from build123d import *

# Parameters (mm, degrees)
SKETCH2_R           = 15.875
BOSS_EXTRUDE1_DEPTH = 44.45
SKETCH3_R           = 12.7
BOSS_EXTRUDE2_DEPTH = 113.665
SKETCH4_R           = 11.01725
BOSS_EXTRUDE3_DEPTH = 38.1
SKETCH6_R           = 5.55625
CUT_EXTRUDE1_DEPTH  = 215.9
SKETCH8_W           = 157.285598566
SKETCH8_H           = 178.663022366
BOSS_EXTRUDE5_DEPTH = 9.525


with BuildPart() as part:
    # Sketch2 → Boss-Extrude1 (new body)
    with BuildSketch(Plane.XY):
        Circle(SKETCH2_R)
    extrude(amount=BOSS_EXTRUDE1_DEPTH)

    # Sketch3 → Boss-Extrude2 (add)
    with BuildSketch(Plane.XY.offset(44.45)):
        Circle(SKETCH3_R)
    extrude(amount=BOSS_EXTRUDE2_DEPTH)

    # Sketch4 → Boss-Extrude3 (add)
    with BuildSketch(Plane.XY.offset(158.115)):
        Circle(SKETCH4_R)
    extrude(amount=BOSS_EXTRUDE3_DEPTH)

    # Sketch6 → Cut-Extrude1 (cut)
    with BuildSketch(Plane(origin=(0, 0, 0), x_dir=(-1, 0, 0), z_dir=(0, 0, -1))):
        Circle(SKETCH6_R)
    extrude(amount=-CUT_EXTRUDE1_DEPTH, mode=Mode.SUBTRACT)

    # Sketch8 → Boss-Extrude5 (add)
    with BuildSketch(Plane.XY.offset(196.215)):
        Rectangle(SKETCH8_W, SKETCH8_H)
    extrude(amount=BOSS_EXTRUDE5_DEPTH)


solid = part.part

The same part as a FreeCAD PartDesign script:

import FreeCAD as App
import Part
import Sketcher
from FreeCAD import Vector
Q = App.Units.Quantity

doc = App.newDocument("Part")
params = doc.addObject("Spreadsheet::Sheet", "Params")
for row, (alias, value) in enumerate([
    ("sketch1_diameter", "1.25 in"),
    ("pad1_length", "1.75 in"),
    ("sketch2_diameter", "1 in"),
    ("pad2_length", "4.475 in"),
    ("pad3_length", "1.5 in"),
    ("sketch4_diameter", "0.4375 in"),
    ("pocket1_length", "8.5 in"),
    ("pad4_length", "0.375 in"),
], start=1):
    params.set(f"A{row}", alias)
    params.set(f"B{row}", "=" + value)
    params.setAlias(f"B{row}", alias)

body = doc.addObject("PartDesign::Body", "Body")

sketch1 = body.newObject("Sketcher::SketchObject", "Sketch")
sketch1.AttachmentSupport = (doc.getObject("XY_Plane"), [""])
sketch1.MapMode = "FlatFace"
sketch1.addGeometry(Part.Circle(Vector(0, 0, 0), Vector(0, 0, 1), 16), False)
sketch1.addConstraint([
    Sketcher.Constraint("Coincident", 0, 3, -1, 1),
    Sketcher.Constraint("Diameter", 0, Q("1.25 in")),
])
sketch1.setExpression("Constraints[1]", "Params.sketch1_diameter")
pad1 = body.newObject("PartDesign::Pad", "Pad")
pad1.Profile = sketch1
pad1.setExpression("Length", "Params.pad1_length")

sketch2 = body.newObject("Sketcher::SketchObject", "Sketch001")
sketch2.AttachmentSupport = (doc.getObject("XY_Plane"), [""])
sketch2.MapMode = "FlatFace"
sketch2.AttachmentOffset = App.Placement(Vector(0, 0, 1.75 * 25.4), App.Rotation())
sketch2.addGeometry(Part.Circle(Vector(0, 0, 0), Vector(0, 0, 1), 13), False)
sketch2.addConstraint([
    Sketcher.Constraint("Coincident", 0, 3, -1, 1),
    Sketcher.Constraint("Diameter", 0, Q("1 in")),
])
sketch2.setExpression("Constraints[1]", "Params.sketch2_diameter")
pad2 = body.newObject("PartDesign::Pad", "Pad001")
pad2.Profile = sketch2
pad2.setExpression("Length", "Params.pad2_length")

sketch3 = body.newObject("Sketcher::SketchObject", "Sketch002")
sketch3.AttachmentSupport = (doc.getObject("XY_Plane"), [""])
sketch3.MapMode = "FlatFace"
sketch3.AttachmentOffset = App.Placement(Vector(0, 0, 6.225 * 25.4), App.Rotation())
sketch3.addGeometry(Part.Circle(Vector(0, 0, 0), Vector(0, 0, 1), 11), False)
sketch3.addConstraint([
    Sketcher.Constraint("Coincident", 0, 3, -1, 1),
    Sketcher.Constraint("Diameter", 0, Q("0.8675 in")),
])
pad3 = body.newObject("PartDesign::Pad", "Pad002")
pad3.Profile = sketch3
pad3.setExpression("Length", "Params.pad3_length")

sketch4 = body.newObject("Sketcher::SketchObject", "Sketch003")
sketch4.AttachmentSupport = (doc.getObject("XY_Plane"), [""])
sketch4.MapMode = "FlatFace"
sketch4.addGeometry(Part.Circle(Vector(0, 0, 0), Vector(0, 0, 1), 6), False)
sketch4.addConstraint([
    Sketcher.Constraint("Coincident", 0, 3, -1, 1),
    Sketcher.Constraint("Diameter", 0, Q("0.4375 in")),
])
sketch4.setExpression("Constraints[1]", "Params.sketch4_diameter")
pocket1 = body.newObject("PartDesign::Pocket", "Pocket")
pocket1.Profile = sketch4
pocket1.setExpression("Length", "Params.pocket1_length")
pocket1.Reversed = True

sketch5 = body.newObject("Sketcher::SketchObject", "Sketch004")
sketch5.AttachmentSupport = (doc.getObject("XY_Plane"), [""])
sketch5.MapMode = "FlatFace"
sketch5.AttachmentOffset = App.Placement(Vector(0, 0, 7.725 * 25.4), App.Rotation())
sketch5.addGeometry([
    Part.LineSegment(Vector(-79, 89, 0), Vector(-79, -89, 0)),
    Part.LineSegment(Vector(-79, -89, 0), Vector(79, -89, 0)),
    Part.LineSegment(Vector(79, -89, 0), Vector(79, 89, 0)),
    Part.LineSegment(Vector(79, 89, 0), Vector(-79, 89, 0)),
], False)
sketch5.addConstraint([
    Sketcher.Constraint("Coincident", 0, 2, 1, 1),
    Sketcher.Constraint("Coincident", 1, 2, 2, 1),
    Sketcher.Constraint("Coincident", 2, 2, 3, 1),
    Sketcher.Constraint("Coincident", 3, 2, 0, 1),
    Sketcher.Constraint("Vertical", 0),
    Sketcher.Constraint("Horizontal", 1),
    Sketcher.Constraint("Vertical", 2),
    Sketcher.Constraint("Horizontal", 3),
    Sketcher.Constraint("Symmetric", 0, 2, 2, 2, -1, 1),
    Sketcher.Constraint("DistanceX", 1, 1, 1, 2, 157.285599),
    Sketcher.Constraint("DistanceY", 0, 2, 0, 1, 178.663022),
])
pad4 = body.newObject("PartDesign::Pad", "Pad003")
pad4.Profile = sketch5
pad4.setExpression("Length", "Params.pad4_length")

doc.recompute()
